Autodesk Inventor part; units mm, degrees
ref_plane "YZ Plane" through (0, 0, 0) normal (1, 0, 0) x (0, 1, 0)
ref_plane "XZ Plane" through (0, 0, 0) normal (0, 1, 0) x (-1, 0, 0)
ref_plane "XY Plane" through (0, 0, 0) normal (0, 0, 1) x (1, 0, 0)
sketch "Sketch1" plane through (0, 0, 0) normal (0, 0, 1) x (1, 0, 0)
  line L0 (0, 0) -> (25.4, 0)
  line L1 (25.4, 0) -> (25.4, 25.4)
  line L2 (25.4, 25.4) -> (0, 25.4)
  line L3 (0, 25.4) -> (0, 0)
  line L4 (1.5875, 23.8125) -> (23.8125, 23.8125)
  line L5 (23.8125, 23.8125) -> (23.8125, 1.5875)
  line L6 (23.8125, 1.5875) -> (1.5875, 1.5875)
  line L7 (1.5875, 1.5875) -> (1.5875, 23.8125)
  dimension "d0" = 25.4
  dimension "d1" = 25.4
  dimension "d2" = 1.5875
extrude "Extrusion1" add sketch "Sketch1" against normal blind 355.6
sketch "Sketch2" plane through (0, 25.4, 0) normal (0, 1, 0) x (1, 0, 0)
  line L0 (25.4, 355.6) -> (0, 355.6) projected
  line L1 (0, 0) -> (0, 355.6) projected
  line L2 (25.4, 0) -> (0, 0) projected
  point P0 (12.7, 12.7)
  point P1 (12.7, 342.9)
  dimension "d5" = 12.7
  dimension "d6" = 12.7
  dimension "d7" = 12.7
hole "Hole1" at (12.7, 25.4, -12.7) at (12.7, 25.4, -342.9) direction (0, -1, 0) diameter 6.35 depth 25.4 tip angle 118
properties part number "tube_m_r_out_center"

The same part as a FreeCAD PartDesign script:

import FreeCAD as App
import Part
import Sketcher
from FreeCAD import Vector
Q = App.Units.Quantity


def add_polygon(sketch, points):
    """Adds a closed chain of lines whose ends are joined by coincident constraints."""
    first, n = sketch.GeometryCount, len(points)
    for a, b in zip(points, points[1:] + points[:1]):
        sketch.addGeometry(Part.LineSegment(App.Vector(*a, 0), App.Vector(*b, 0)), False)
    for i in range(n):
        sketch.addConstraint(Sketcher.Constraint("Coincident", first + i, 2, first + (i + 1) % n, 1))

doc = App.newDocument("Part")
params = doc.addObject("Spreadsheet::Sheet", "Params")
for row, (alias, value) in enumerate([
    ("sketch1_width", "1 in"),
    ("pad1_length", "14 in"),
    ("sketch2_diameter", "0.25 in"),
    ("hole_diameter", "0.25 in"),
    ("hole_depth", "1 in"),
], start=1):
    params.set(f"A{row}", alias)
    params.set(f"B{row}", "=" + value)
    params.setAlias(f"B{row}", alias)

body = doc.addObject("PartDesign::Body", "Body")

# Sketch on XY plane
sketch1 = body.newObject("Sketcher::SketchObject", "Sketch")
sketch1.AttachmentSupport = (doc.getObject("XY_Plane"), [""])
sketch1.MapMode = "FlatFace"
add_polygon(sketch1, [(0, 25), (0, 0), (25, 0), (25, 25)])  # lines 0-3
add_polygon(sketch1, [(2, 2), (2, 24), (24, 24), (24, 2)])  # lines 4-7
sketch1.addConstraint(Sketcher.Constraint("Vertical", 0))
sketch1.addConstraint(Sketcher.Constraint("Horizontal", 1))
sketch1.addConstraint(Sketcher.Constraint("Vertical", 2))
sketch1.addConstraint(Sketcher.Constraint("Horizontal", 3))
sketch1.addConstraint(Sketcher.Constraint("Vertical", 4))
sketch1.addConstraint(Sketcher.Constraint("Horizontal", 5))
sketch1.addConstraint(Sketcher.Constraint("Vertical", 6))
sketch1.addConstraint(Sketcher.Constraint("Horizontal", 7))
sketch1.addConstraint(Sketcher.Constraint("Coincident", 0, 2, -1, 1))
sketch1.addConstraint(Sketcher.Constraint("Equal", 3, 0))
sketch1.addConstraint(Sketcher.Constraint("Equal", 7, 4))
sketch1.addConstraint(Sketcher.Constraint("DistanceX", 1, 1, 1, 2, Q("1 in")))
sketch1.addConstraint(Sketcher.Constraint("DistanceX", -1, 1, 4, 2, Q("0.0625 in")))
sketch1.addConstraint(Sketcher.Constraint("DistanceY", -1, 1, 6, 2, Q("0.0625 in")))
sketch1.addConstraint(Sketcher.Constraint("DistanceY", 4, 2, 3, 2, Q("0.0625 in")))
sketch1.setExpression("Constraints[19]", "Params.sketch1_width")
pad1 = body.newObject("PartDesign::Pad", "Pad")
pad1.Profile = sketch1
pad1.setExpression("Length", "Params.pad1_length")
pad1.Reversed = True

# Sketch on XZ plane
sketch2 = body.newObject("Sketcher::SketchObject", "Sketch001")
sketch2.AttachmentSupport = (doc.getObject("XZ_Plane"), [""])
sketch2.MapMode = "FlatFace"
sketch2.AttachmentOffset = App.Placement(Vector(0, 0, -1 * 25.4), App.Rotation())
sketch2.addGeometry(Part.Circle(Vector(12.7, -12.7, 0), Vector(0, 0, 1), 3.2), False)
sketch2.addGeometry(Part.Circle(Vector(12.7, -342.9, 0), Vector(0, 0, 1), 3.2), False)
sketch2.addConstraint(Sketcher.Constraint("Equal", 0, 1))
sketch2.addConstraint(Sketcher.Constraint("Vertical", 0, 3, 1, 3))
sketch2.addConstraint(Sketcher.Constraint("Diameter", 0, Q("0.25 in")))
sketch2.addConstraint(Sketcher.Constraint("DistanceY", 1, 3, 0, 3, Q("13 in")))
sketch2.addConstraint(Sketcher.Constraint("DistanceX", -1, 1, 0, 3, Q("0.5 in")))
sketch2.addConstraint(Sketcher.Constraint("DistanceY", 0, 3, -1, 1, Q("0.5 in")))
sketch2.setExpression("Constraints[2]", "Params.sketch2_diameter")
doc.recompute()
hole = body.newObject("PartDesign::Hole", "Hole")
hole.Profile = sketch2
hole.ThreadType = "None"
hole.setExpression("Diameter", "Params.hole_diameter")
hole.DepthType = "Dimension"
hole.setExpression("Depth", "Params.hole_depth")
hole.DrillPoint = "Angled"
hole.DrillPointAngle = 118
hole.Reversed = True

doc.recompute()
